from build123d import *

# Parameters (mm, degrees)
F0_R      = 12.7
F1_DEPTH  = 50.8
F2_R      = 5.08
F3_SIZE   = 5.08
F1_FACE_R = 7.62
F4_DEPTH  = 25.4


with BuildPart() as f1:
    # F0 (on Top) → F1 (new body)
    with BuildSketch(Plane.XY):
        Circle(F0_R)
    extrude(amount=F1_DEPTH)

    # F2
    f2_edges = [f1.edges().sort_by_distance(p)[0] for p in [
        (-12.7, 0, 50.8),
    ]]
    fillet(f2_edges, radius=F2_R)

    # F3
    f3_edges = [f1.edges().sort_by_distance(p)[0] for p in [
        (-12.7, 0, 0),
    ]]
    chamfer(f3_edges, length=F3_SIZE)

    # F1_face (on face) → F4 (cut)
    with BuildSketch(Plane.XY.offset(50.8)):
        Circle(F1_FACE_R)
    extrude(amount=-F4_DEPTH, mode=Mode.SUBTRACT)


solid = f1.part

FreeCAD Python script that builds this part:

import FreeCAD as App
import Part
import Sketcher
Q = App.Units.Quantity


def edges_at(feature, points):
    """Names of the edges that pass closest to the given points."""
    edges = feature.Shape.Edges
    near = lambda p: min(range(len(edges)), key=lambda i: edges[i].distToShape(Part.Vertex(*p))[0])
    return sorted({f"Edge{near(p) + 1}" for p in points})

doc = App.newDocument("Part")
params = doc.addObject("Spreadsheet::Sheet", "Params")
for row, (alias, value) in enumerate([
    ("sketch1_diameter", "1 in"),
    ("pad1_length", "2 in"),
    ("fillet_radius", "0.2 in"),
    ("chamfer_size", "0.2 in"),
    ("sketch2_diameter", "0.6 in"),
    ("pocket1_length", "1 in"),
], start=1):
    params.set(f"A{row}", alias)
    params.set(f"B{row}", "=" + value)
    params.setAlias(f"B{row}", alias)

body = doc.addObject("PartDesign::Body", "Body")

# Sketch on XY plane
sketch1 = body.newObject("Sketcher::SketchObject", "Sketch")
sketch1.AttachmentSupport = (doc.getObject("XY_Plane"), [""])
sketch1.MapMode = "FlatFace"
sketch1.addGeometry(Part.Circle(App.Vector(0, 0, 0), App.Vector(0, 0, 1), 12.7), False)
sketch1.addConstraint([
    Sketcher.Constraint("Coincident", 0, 3, -1, 1),
    Sketcher.Constraint("Diameter", 0, Q("1 in")),
])
sketch1.setExpression("Constraints[1]", "Params.sketch1_diameter")
pad1 = body.newObject("PartDesign::Pad", "Pad")
pad1.Profile = sketch1
pad1.setExpression("Length", "Params.pad1_length")
doc.recompute()

fillet = body.newObject("PartDesign::Fillet", "Fillet")
fillet.Base = (pad1, edges_at(pad1, [(-12.7, 0, 50.8)]))
fillet.setExpression("Radius", "Params.fillet_radius")
doc.recompute()

chamfer = body.newObject("PartDesign::Chamfer", "Chamfer")
chamfer.Base = (fillet, edges_at(fillet, [(-12.7, 0, 0)]))
chamfer.setExpression("Size", "Params.chamfer_size")

# Sketch on XY plane
sketch2 = body.newObject("Sketcher::SketchObject", "Sketch001")
sketch2.AttachmentSupport = (doc.getObject("XY_Plane"), [""])
sketch2.MapMode = "FlatFace"
sketch2.AttachmentOffset = App.Placement(App.Vector(0, 0, 2 * 25.4), App.Rotation())
sketch2.addGeometry(Part.Circle(App.Vector(0, 0, 0), App.Vector(0, 0, 1), 7.62), False)
sketch2.addConstraint([
    Sketcher.Constraint("Coincident", 0, 3, -1, 1),
    Sketcher.Constraint("Diameter", 0, Q("0.6 in")),
])
sketch2.setExpression("Constraints[1]", "Params.sketch2_diameter")
pocket1 = body.newObject("PartDesign::Pocket", "Pocket")
pocket1.Profile = sketch2
pocket1.setExpression("Length", "Params.pocket1_length")

doc.recompute()
